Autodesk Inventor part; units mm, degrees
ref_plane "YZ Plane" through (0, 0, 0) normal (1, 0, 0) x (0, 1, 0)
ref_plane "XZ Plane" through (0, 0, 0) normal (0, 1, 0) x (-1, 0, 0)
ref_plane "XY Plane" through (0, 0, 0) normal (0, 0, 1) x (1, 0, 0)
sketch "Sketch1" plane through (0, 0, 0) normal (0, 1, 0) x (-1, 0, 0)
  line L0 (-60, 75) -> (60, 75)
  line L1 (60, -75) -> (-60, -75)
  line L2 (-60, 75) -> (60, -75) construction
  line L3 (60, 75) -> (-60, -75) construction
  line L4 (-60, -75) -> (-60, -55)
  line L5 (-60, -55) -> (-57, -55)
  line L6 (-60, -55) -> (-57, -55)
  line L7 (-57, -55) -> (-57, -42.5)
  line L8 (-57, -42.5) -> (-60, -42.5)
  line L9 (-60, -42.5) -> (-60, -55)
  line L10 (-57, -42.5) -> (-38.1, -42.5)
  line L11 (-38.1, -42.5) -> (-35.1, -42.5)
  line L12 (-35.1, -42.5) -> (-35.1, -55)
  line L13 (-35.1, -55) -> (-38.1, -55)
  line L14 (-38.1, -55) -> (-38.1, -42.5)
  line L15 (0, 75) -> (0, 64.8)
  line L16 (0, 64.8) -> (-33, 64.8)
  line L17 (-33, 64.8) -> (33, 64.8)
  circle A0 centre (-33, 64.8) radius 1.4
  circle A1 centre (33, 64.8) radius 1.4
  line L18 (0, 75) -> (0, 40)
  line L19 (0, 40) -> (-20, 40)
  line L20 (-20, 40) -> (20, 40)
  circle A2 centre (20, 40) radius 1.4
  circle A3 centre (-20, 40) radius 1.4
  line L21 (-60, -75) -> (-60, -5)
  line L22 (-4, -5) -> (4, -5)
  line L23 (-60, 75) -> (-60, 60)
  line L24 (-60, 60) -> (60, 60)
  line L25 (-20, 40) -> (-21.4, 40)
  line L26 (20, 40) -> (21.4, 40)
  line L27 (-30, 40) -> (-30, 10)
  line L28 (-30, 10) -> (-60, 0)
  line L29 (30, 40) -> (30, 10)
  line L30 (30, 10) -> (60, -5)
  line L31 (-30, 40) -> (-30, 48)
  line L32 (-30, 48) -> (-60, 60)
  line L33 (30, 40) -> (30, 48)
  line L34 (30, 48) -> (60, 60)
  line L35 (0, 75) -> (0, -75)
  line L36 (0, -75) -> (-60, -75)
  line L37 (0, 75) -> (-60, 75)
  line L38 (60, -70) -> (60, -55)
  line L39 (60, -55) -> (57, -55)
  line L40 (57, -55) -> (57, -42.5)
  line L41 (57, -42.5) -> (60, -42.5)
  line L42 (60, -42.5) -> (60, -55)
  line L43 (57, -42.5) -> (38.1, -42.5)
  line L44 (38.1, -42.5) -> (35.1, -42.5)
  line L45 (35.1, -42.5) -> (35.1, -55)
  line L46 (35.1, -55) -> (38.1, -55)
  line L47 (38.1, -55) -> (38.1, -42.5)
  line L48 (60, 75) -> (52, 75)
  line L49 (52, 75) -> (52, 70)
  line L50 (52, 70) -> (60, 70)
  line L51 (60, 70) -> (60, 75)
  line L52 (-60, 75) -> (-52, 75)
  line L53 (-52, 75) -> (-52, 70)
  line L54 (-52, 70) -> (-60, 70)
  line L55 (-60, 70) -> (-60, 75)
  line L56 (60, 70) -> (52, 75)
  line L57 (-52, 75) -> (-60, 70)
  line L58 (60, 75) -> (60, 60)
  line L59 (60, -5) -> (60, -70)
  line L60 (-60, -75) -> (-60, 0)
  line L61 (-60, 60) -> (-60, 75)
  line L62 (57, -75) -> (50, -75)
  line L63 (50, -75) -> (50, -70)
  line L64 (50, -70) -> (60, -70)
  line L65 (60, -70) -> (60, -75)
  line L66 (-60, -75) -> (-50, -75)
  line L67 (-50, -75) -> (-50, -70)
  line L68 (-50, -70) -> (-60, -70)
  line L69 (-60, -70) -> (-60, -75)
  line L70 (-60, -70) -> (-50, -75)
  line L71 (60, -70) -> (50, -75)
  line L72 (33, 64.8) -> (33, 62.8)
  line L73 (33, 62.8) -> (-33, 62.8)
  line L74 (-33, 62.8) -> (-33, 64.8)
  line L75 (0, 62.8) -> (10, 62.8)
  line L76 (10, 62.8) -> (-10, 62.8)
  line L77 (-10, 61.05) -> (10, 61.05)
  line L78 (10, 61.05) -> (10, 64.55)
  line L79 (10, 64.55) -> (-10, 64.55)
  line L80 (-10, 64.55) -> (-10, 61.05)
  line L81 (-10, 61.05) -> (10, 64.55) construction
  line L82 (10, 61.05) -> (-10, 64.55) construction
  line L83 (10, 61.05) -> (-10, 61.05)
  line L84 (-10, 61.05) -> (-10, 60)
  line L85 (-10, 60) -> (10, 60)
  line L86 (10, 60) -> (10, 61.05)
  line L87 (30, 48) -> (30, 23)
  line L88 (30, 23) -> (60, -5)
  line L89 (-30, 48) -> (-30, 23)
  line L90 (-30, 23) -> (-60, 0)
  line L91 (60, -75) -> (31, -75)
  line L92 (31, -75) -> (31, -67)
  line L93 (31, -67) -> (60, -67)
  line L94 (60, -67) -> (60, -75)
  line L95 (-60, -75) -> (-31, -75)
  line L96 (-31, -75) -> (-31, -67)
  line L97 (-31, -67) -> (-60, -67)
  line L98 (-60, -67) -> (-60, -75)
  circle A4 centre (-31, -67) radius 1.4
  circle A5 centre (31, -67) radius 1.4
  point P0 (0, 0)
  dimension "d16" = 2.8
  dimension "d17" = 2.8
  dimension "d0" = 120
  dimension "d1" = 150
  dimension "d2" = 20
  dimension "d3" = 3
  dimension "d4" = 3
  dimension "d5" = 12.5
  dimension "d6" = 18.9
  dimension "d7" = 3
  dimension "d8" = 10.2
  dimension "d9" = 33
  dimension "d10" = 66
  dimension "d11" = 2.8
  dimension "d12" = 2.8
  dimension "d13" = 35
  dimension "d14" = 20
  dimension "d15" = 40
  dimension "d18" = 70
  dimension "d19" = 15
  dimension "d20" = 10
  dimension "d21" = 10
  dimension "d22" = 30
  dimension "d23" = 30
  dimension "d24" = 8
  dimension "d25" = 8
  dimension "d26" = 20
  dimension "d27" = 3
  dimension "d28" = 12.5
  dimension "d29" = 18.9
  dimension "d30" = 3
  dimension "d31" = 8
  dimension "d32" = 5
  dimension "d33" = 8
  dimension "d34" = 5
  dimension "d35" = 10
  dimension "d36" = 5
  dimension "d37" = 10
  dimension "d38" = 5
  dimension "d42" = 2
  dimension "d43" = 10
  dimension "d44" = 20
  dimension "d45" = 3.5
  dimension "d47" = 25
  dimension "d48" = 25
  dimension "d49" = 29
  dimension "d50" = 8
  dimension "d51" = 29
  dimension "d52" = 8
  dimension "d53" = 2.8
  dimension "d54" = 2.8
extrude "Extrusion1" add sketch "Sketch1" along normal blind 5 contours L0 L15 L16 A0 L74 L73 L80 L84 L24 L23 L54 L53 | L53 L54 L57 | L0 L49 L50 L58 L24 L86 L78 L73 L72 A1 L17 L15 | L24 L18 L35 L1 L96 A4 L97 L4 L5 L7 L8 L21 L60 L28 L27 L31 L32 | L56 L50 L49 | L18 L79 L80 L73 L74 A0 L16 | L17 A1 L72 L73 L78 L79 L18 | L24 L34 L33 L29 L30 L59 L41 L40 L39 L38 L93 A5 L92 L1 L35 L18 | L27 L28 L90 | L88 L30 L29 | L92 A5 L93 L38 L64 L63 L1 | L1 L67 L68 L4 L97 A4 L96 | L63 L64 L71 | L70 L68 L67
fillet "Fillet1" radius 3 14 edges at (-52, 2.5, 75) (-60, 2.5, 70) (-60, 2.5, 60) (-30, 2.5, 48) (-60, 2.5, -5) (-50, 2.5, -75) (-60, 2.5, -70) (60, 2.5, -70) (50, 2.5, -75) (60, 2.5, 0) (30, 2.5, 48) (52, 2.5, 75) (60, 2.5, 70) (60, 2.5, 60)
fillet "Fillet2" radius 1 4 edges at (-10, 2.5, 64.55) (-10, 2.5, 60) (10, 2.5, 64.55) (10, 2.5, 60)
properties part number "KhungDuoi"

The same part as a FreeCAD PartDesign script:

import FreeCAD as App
import Part
import Sketcher
Q = App.Units.Quantity


def edges_at(feature, points):
    """Names of the edges that pass closest to the given points."""
    edges = feature.Shape.Edges
    near = lambda p: min(range(len(edges)), key=lambda i: edges[i].distToShape(Part.Vertex(*p))[0])
    return sorted({f"Edge{near(p) + 1}" for p in points})


def add_polygon(sketch, points):
    """Adds a closed chain of lines whose ends are joined by coincident constraints."""
    first, n = sketch.GeometryCount, len(points)
    for a, b in zip(points, points[1:] + points[:1]):
        sketch.addGeometry(Part.LineSegment(App.Vector(*a, 0), App.Vector(*b, 0)), False)
    for i in range(n):
        sketch.addConstraint(Sketcher.Constraint("Coincident", first + i, 2, first + (i + 1) % n, 1))

doc = App.newDocument("Part")
body = doc.addObject("PartDesign::Body", "Body")

sketch1 = body.newObject("Sketcher::SketchObject", "Sketch")
sketch1.AttachmentSupport = (doc.getObject("XZ_Plane"), [""])
sketch1.MapMode = "FlatFace"
add_polygon(sketch1, [(52, 75), (60, 70), (60, 60), (30, 48), (30, 23), (60, 0), (60, -42.5), (57, -42.5), (57, -55), (60, -55), (60, -70), (50, -75), (-50, -75), (-60, -70), (-60, -55), (-57, -55), (-57, -42.5), (-60, -42.5), (-60, -5), (-30, 23), (-30, 48), (-60, 60), (-60, 70), (-52, 75)])
sketch1.addGeometry(Part.Circle(App.Vector(33, 64.8, 0), App.Vector(0, 0, 1), 1.4), False)
add_polygon(sketch1, [(10, 64.5), (-10, 64.5), (-10, 60), (10, 60)])
sketch1.addGeometry(Part.Circle(App.Vector(-33, 64.8, 0), App.Vector(0, 0, 1), 1.4), False)
sketch1.addGeometry(Part.Circle(App.Vector(31, -67, 0), App.Vector(0, 0, 1), 1.4), False)
add_polygon(sketch1, [(38.1, -55), (38.1, -42.5), (35.1, -42.5), (35.1, -55)])
sketch1.addGeometry(Part.Circle(App.Vector(20, 40, 0), App.Vector(0, 0, 1), 1.4), False)
sketch1.addGeometry(Part.Circle(App.Vector(-31, -67, 0), App.Vector(0, 0, 1), 1.4), False)
sketch1.addGeometry(Part.Circle(App.Vector(-20, 40, 0), App.Vector(0, 0, 1), 1.4), False)
add_polygon(sketch1, [(-35.1, -42.5), (-38.1, -42.5), (-38.1, -55), (-35.1, -55)])
sketch1.addConstraint([
    Sketcher.Constraint("Vertical", 1),
    Sketcher.Constraint("Vertical", 3),
    Sketcher.Constraint("Vertical", 5),
    Sketcher.Constraint("Horizontal", 6),
    Sketcher.Constraint("Vertical", 7),
    Sketcher.Constraint("Horizontal", 8),
    Sketcher.Constraint("Vertical", 9),
    Sketcher.Constraint("Horizontal", 11),
    Sketcher.Constraint("Vertical", 13),
    Sketcher.Constraint("Horizontal", 14),
    Sketcher.Constraint("Vertical", 15),
    Sketcher.Constraint("Horizontal", 16),
    Sketcher.Constraint("Vertical", 17),
    Sketcher.Constraint("Vertical", 19),
    Sketcher.Constraint("Vertical", 21),
    Sketcher.Constraint("Horizontal", 23),
    Sketcher.Constraint("Horizontal", 25),
    Sketcher.Constraint("Vertical", 26),
    Sketcher.Constraint("Horizontal", 27),
    Sketcher.Constraint("Vertical", 28),
    Sketcher.Constraint("Vertical", 31),
    Sketcher.Constraint("Horizontal", 32),
    Sketcher.Constraint("Vertical", 33),
    Sketcher.Constraint("Horizontal", 34),
    Sketcher.Constraint("Horizontal", 38),
    Sketcher.Constraint("Vertical", 39),
    Sketcher.Constraint("Horizontal", 40),
    Sketcher.Constraint("Vertical", 41),
    Sketcher.Constraint("Equal", 24, 29),
    Sketcher.Constraint("Equal", 29, 30),
    Sketcher.Constraint("Equal", 30, 35),
    Sketcher.Constraint("Equal", 35, 36),
    Sketcher.Constraint("Equal", 36, 37),
    Sketcher.Constraint("Symmetric", 0, 2, 12, 2, -1, 1),
    Sketcher.Constraint("Symmetric", 9, 2, 21, 2, -1, 1),
    Sketcher.Constraint("Symmetric", 24, 3, 29, 3, -2),
    Sketcher.Constraint("Symmetric", 30, 3, 36, 3, -2),
    Sketcher.Constraint("Symmetric", 35, 3, 37, 3, -2),
    Sketcher.Constraint("Symmetric", 9, 2, 12, 2, -2),
    Sketcher.Constraint("Symmetric", 7, 2, 14, 2, -2),
    Sketcher.Constraint("Symmetric", 5, 2, 16, 2, -2),
    Sketcher.Constraint("Symmetric", 3, 2, 18, 2, -2),
    Sketcher.Constraint("Symmetric", 31, 2, 38, 2, -2),
    Sketcher.Constraint("Symmetric", 33, 2, 40, 2, -2),
    Sketcher.Constraint("PointOnObject", 4, 2, -1),
    Sketcher.Constraint("Horizontal", 2, 2, 19, 2),
    Sketcher.Constraint("Horizontal", 1, 2, 20, 2),
    Sketcher.Constraint("Horizontal", 20, 2, 26, 2),
    Sketcher.Constraint("Horizontal", 16, 2, 31, 2),
    Sketcher.Constraint("Horizontal", 14, 2, 33, 2),
    Sketcher.Constraint("Vertical", 1, 2, 4, 2),
    Sketcher.Constraint("Equal", 16, 32),
    Sketcher.Constraint("Equal", 10, 12),
    Sketcher.Constraint("Equal", 0, 22),
    Sketcher.Constraint("Diameter", 24, Q("2.8 mm")),
    Sketcher.Constraint("DistanceX", 6, 2, 6, 1, Q("3 mm")),
    Sketcher.Constraint("DistanceX", 25, 2, 25, 1, Q("20 mm")),
    Sketcher.Constraint("DistanceY", 1, 2, 1, 1, Q("10 mm")),
    Sketcher.Constraint("DistanceY", 3, 2, 3, 1, Q("25 mm")),
    Sketcher.Constraint("DistanceY", 9, 2, 9, 1, Q("15 mm")),
    Sketcher.Constraint("DistanceY", 7, 2, 7, 1, Q("12.5 mm")),
    Sketcher.Constraint("DistanceX", -1, 1, 24, 3, Q("33 mm")),
    Sketcher.Constraint("DistanceX", -1, 1, 35, 3, Q("20 mm")),
    Sketcher.Constraint("DistanceY", -1, 1, 35, 3, Q("40 mm")),
    Sketcher.Constraint("DistanceY", -1, 1, 0, 2, Q("70 mm")),
    Sketcher.Constraint("DistanceX", -1, 1, 2, 2, Q("30 mm")),
    Sketcher.Constraint("DistanceY", 17, 2, -1, 1, Q("5 mm")),
    Sketcher.Constraint("DistanceX", 25, 2, -1, 1, Q("10 mm")),
    Sketcher.Constraint("DistanceX", 30, 3, 24, 3, Q("2 mm")),
    Sketcher.Constraint("DistanceX", 35, 3, 0, 2, Q("40 mm")),
    Sketcher.Constraint("DistanceY", 35, 3, 2, 2, Q("8 mm")),
    Sketcher.Constraint("DistanceY", 9, 2, 30, 3, Q("3 mm")),
    Sketcher.Constraint("DistanceX", 10, 2, 9, 2, Q("10 mm")),
    Sketcher.Constraint("DistanceY", 10, 2, 9, 2, Q("5 mm")),
    Sketcher.Constraint("DistanceX", 21, 2, 22, 2, Q("8 mm")),
    Sketcher.Constraint("DistanceY", 21, 2, 22, 2, Q("5 mm")),
    Sketcher.Constraint("DistanceY", 29, 3, 22, 2, Q("10.2 mm")),
    Sketcher.Constraint("DistanceX", 31, 2, 6, 2, Q("18.9 mm")),
    Sketcher.Constraint("DistanceY", 26, 2, 26, 1, Q("4.55 mm")),
])
pad1 = body.newObject("PartDesign::Pad", "Pad")
pad1.Profile = sketch1
pad1.Length = 5
pad1.Reversed = True
doc.recompute()

fillet = body.newObject("PartDesign::Fillet", "Fillet")
fillet.Base = (pad1, edges_at(pad1, [
    (-52, 2.5, 75),
    (-60, 2.5, 70),
    (-60, 2.5, 60),
    (-30, 2.5, 48),
    (-60, 2.5, -5),
    (-50, 2.5, -75),
    (-60, 2.5, -70),
    (60, 2.5, -70),
    (50, 2.5, -75),
    (60, 2.5, 0),
    (30, 2.5, 48),
    (52, 2.5, 75),
    (60, 2.5, 70),
    (60, 2.5, 60),
]))
fillet.Radius = 3
doc.recompute()

fillet2 = body.newObject("PartDesign::Fillet", "Fillet001")
fillet2.Base = (fillet, edges_at(fillet, [
    (-10, 2.5, 64.55),
    (-10, 2.5, 60),
    (10, 2.5, 64.55),
    (10, 2.5, 60),
]))
fillet2.Radius = 1

doc.recompute()
